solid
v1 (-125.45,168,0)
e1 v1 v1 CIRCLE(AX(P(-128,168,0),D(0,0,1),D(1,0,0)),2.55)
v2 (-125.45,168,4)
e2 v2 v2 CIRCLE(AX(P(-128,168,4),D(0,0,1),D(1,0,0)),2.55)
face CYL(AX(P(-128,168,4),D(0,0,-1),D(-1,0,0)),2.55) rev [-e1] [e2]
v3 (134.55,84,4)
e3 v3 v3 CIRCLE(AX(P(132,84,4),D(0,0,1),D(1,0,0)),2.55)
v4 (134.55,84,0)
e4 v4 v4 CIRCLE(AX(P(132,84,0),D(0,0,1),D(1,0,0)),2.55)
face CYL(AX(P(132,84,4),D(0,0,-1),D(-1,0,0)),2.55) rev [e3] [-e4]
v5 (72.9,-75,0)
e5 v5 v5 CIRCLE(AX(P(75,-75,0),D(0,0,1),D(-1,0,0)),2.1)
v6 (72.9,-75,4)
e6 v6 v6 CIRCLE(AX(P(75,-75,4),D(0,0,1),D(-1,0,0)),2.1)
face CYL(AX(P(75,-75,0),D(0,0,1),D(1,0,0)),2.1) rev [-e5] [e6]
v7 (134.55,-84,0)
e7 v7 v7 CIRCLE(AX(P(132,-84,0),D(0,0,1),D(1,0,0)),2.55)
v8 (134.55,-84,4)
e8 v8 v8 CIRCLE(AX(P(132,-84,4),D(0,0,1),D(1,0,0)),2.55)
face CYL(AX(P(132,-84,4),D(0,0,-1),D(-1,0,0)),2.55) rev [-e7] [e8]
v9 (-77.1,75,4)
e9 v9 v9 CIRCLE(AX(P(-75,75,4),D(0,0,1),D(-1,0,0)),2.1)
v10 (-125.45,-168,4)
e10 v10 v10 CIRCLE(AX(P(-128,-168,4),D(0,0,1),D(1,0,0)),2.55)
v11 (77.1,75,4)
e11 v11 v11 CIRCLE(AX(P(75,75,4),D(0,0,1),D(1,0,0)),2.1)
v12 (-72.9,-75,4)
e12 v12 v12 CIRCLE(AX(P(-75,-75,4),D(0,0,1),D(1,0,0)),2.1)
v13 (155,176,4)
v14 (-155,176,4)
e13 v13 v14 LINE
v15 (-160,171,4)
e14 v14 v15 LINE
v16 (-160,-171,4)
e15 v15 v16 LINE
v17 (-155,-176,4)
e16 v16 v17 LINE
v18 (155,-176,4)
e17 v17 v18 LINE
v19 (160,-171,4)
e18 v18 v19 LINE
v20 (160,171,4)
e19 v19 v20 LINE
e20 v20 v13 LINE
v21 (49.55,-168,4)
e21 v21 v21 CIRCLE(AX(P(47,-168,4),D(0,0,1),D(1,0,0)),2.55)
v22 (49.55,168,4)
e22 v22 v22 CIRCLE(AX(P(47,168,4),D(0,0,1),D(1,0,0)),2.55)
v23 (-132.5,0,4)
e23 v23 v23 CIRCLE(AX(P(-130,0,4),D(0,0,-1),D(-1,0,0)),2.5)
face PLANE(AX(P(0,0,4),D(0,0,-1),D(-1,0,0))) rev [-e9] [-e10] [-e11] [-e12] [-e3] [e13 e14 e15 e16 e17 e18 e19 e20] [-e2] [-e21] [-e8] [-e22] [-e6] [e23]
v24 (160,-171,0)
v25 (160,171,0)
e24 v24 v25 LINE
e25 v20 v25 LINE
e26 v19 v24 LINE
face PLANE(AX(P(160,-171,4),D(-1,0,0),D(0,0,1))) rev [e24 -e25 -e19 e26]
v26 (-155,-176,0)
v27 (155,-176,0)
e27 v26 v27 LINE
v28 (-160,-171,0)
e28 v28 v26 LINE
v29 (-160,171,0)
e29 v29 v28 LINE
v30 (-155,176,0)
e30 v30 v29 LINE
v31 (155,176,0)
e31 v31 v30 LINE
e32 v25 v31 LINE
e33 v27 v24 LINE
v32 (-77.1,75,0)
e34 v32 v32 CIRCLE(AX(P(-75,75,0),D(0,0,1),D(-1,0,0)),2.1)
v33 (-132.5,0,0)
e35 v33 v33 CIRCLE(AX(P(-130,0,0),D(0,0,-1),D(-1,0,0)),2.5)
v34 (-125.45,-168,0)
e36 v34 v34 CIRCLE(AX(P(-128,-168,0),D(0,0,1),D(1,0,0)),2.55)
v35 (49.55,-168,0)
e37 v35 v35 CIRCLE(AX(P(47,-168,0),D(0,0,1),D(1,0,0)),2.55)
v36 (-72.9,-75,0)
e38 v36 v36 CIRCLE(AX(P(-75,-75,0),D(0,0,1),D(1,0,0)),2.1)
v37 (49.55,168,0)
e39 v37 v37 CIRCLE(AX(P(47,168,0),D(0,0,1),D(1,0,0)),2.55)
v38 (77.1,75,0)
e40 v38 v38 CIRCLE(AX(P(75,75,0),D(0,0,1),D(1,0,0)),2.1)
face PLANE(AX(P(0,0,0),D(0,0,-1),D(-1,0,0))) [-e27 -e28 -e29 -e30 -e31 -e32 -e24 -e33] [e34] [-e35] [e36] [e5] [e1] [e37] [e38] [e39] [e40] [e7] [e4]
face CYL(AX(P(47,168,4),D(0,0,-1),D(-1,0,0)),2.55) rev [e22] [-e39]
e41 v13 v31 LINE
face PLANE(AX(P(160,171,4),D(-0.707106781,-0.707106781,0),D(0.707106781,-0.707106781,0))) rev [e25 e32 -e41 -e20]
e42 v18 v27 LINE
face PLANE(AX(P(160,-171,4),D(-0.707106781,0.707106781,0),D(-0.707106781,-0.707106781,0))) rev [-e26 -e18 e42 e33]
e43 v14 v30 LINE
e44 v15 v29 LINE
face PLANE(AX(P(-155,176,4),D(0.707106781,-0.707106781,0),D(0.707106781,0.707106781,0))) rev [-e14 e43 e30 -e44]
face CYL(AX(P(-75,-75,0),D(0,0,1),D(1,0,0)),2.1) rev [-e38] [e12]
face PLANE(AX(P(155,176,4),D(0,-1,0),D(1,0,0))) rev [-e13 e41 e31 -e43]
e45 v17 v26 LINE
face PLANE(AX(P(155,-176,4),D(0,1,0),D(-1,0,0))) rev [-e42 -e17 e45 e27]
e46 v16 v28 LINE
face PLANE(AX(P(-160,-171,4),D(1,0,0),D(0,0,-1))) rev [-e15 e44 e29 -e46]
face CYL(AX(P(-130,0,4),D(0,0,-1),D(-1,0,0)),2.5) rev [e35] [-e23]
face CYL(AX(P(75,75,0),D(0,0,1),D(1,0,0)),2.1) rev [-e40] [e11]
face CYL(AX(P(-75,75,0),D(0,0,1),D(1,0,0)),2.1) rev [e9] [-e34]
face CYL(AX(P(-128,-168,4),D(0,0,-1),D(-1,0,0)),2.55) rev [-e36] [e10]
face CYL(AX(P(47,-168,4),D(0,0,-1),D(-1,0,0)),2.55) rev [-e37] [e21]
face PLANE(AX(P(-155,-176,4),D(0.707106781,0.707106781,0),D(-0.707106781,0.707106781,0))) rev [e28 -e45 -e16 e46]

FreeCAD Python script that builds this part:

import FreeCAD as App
import Part
import Sketcher

V = App.Vector
Q = App.Units.Quantity

doc = App.newDocument("Part")
body = doc.addObject("PartDesign::Body", "Body")

# Sketch on XY plane
sketch1 = body.newObject("Sketcher::SketchObject", "Sketch")
sketch1.AttachmentSupport = (doc.getObject("XY_Plane"), [""])
sketch1.MapMode = "FlatFace"
sketch1.addGeometry(Part.LineSegment(V(-155, 176, 0), V(-160, 171, 0)), False)
sketch1.addGeometry(Part.LineSegment(V(-160, 171, 0), V(-160, -171, 0)), False)
sketch1.addGeometry(Part.LineSegment(V(-160, -171, 0), V(-155, -176, 0)), False)
sketch1.addGeometry(Part.LineSegment(V(-155, -176, 0), V(155, -176, 0)), False)
sketch1.addGeometry(Part.LineSegment(V(155, -176, 0), V(160, -171, 0)), False)
sketch1.addGeometry(Part.LineSegment(V(160, -171, 0), V(160, 171, 0)), False)
sketch1.addGeometry(Part.LineSegment(V(160, 171, 0), V(155, 176, 0)), False)
sketch1.addGeometry(Part.LineSegment(V(155, 176, 0), V(-155, 176, 0)), False)
sketch1.addConstraint(Sketcher.Constraint("Coincident", 0, 2, 1, 1))
sketch1.addConstraint(Sketcher.Constraint("Coincident", 1, 2, 2, 1))
sketch1.addConstraint(Sketcher.Constraint("Coincident", 2, 2, 3, 1))
sketch1.addConstraint(Sketcher.Constraint("Coincident", 3, 2, 4, 1))
sketch1.addConstraint(Sketcher.Constraint("Coincident", 4, 2, 5, 1))
sketch1.addConstraint(Sketcher.Constraint("Coincident", 5, 2, 6, 1))
sketch1.addConstraint(Sketcher.Constraint("Coincident", 6, 2, 7, 1))
sketch1.addConstraint(Sketcher.Constraint("Coincident", 7, 2, 0, 1))
sketch1.addConstraint(Sketcher.Constraint("Vertical", 1))
sketch1.addConstraint(Sketcher.Constraint("Horizontal", 3))
sketch1.addConstraint(Sketcher.Constraint("Vertical", 5))
sketch1.addConstraint(Sketcher.Constraint("Horizontal", 7))
sketch1.addConstraint(Sketcher.Constraint("Symmetric", 0, 2, 4, 2, -1, 1))
sketch1.addConstraint(Sketcher.Constraint("Symmetric", 2, 2, 6, 2, -1, 1))
sketch1.addConstraint(Sketcher.Constraint("Perpendicular", 0, 2))
sketch1.addConstraint(Sketcher.Constraint("Perpendicular", 2, 4))
sketch1.addConstraint(Sketcher.Constraint("Perpendicular", 4, 6))
sketch1.addConstraint(Sketcher.Constraint("Horizontal", 1, 2, 4, 2))
sketch1.addConstraint(Sketcher.Constraint("Vertical", 3, 2, 6, 2))
sketch1.addConstraint(Sketcher.Constraint("DistanceX", 3, 1, 3, 2, Q("310 mm")))
sketch1.addConstraint(Sketcher.Constraint("DistanceY", 1, 2, 1, 1, Q("342 mm")))
sketch1.addConstraint(Sketcher.Constraint("DistanceX", 0, 2, -1, 1, Q("160 mm")))
pad1 = body.newObject("PartDesign::Pad", "Pad")
pad1.Profile = sketch1
pad1.Length = 4

# Sketch on XY plane
sketch2 = body.newObject("Sketcher::SketchObject", "Sketch001")
sketch2.AttachmentSupport = (doc.getObject("XY_Plane"), [""])
sketch2.MapMode = "FlatFace"
sketch2.addGeometry(Part.Circle(V(-130, 0, 0), V(0, 0, 1), 2.5), False)
sketch2.addConstraint(Sketcher.Constraint("PointOnObject", 0, 3, -1))
sketch2.addConstraint(Sketcher.Constraint("Diameter", 0, Q("5 mm")))
sketch2.addConstraint(Sketcher.Constraint("DistanceX", 0, 3, -1, 1, Q("130 mm")))
pocket1 = body.newObject("PartDesign::Pocket", "Pocket")
pocket1.Profile = sketch2
pocket1.Type = "ThroughAll"
pocket1.Reversed = True

# Sketch on XY plane
sketch3 = body.newObject("Sketcher::SketchObject", "Sketch002")
sketch3.AttachmentSupport = (doc.getObject("XY_Plane"), [""])
sketch3.MapMode = "FlatFace"
sketch3.addGeometry(Part.Circle(V(-128, 168, 0), V(0, 0, 1), 2.5), False)
sketch3.addGeometry(Part.Circle(V(47, 168, 0), V(0, 0, 1), 2.5), False)
sketch3.addGeometry(Part.Circle(V(132, 84, 0), V(0, 0, 1), 2.5), False)
sketch3.addGeometry(Part.Circle(V(132, -84, 0), V(0, 0, 1), 2.5), False)
sketch3.addGeometry(Part.Circle(V(47, -168, 0), V(0, 0, 1), 2.5), False)
sketch3.addGeometry(Part.Circle(V(-128, -168, 0), V(0, 0, 1), 2.5), False)
sketch3.addConstraint(Sketcher.Constraint("Equal", 0, 1))
sketch3.addConstraint(Sketcher.Constraint("Equal", 1, 2))
sketch3.addConstraint(Sketcher.Constraint("Equal", 2, 3))
sketch3.addConstraint(Sketcher.Constraint("Equal", 3, 4))
sketch3.addConstraint(Sketcher.Constraint("Equal", 4, 5))
sketch3.addConstraint(Sketcher.Constraint("Symmetric", 2, 3, 3, 3, -1))
sketch3.addConstraint(Sketcher.Constraint("Symmetric", 1, 3, 4, 3, -1))
sketch3.addConstraint(Sketcher.Constraint("Symmetric", 0, 3, 5, 3, -1))
sketch3.addConstraint(Sketcher.Constraint("Horizontal", 0, 3, 1, 3))
sketch3.addConstraint(Sketcher.Constraint("Diameter", 0, Q("5.1 mm")))
sketch3.addConstraint(Sketcher.Constraint("DistanceX", 0, 3, -1, 1, Q("128 mm")))
sketch3.addConstraint(Sketcher.Constraint("DistanceY", -1, 1, 0, 3, Q("168 mm")))
sketch3.addConstraint(Sketcher.Constraint("DistanceX", -1, 1, 1, 3, Q("47 mm")))
sketch3.addConstraint(Sketcher.Constraint("DistanceX", -1, 1, 2, 3, Q("132 mm")))
sketch3.addConstraint(Sketcher.Constraint("DistanceY", -1, 1, 2, 3, Q("84 mm")))
pocket2 = body.newObject("PartDesign::Pocket", "Pocket001")
pocket2.Profile = sketch3
pocket2.Type = "ThroughAll"
pocket2.Reversed = True

# Sketch on XY plane
sketch4 = body.newObject("Sketcher::SketchObject", "Sketch003")
sketch4.AttachmentSupport = (doc.getObject("XY_Plane"), [""])
sketch4.MapMode = "FlatFace"
sketch4.AttachmentOffset = App.Placement(V(0, 0, 4), App.Rotation())
sketch4.addGeometry(Part.Circle(V(-75, -75, 0), V(0, 0, 1), 2.1), False)
sketch4.addGeometry(Part.Circle(V(75, -75, 0), V(0, 0, 1), 2.1), False)
sketch4.addGeometry(Part.Circle(V(75, 75, 0), V(0, 0, 1), 2.1), False)
sketch4.addGeometry(Part.Circle(V(-75, 75, 0), V(0, 0, 1), 2.1), False)
sketch4.addConstraint(Sketcher.Constraint("Equal", 0, 1))
sketch4.addConstraint(Sketcher.Constraint("Equal", 1, 2))
sketch4.addConstraint(Sketcher.Constraint("Equal", 2, 3))
sketch4.addConstraint(Sketcher.Constraint("Symmetric", 0, 3, 2, 3, -1, 1))
sketch4.addConstraint(Sketcher.Constraint("Symmetric", 1, 3, 3, 3, -1, 1))
sketch4.addConstraint(Sketcher.Constraint("Symmetric", 0, 3, 1, 3, -2))
sketch4.addConstraint(Sketcher.Constraint("Diameter", 0, Q("4.2 mm")))
sketch4.addConstraint(Sketcher.Constraint("DistanceX", 0, 3, -1, 1, Q("75 mm")))
sketch4.addConstraint(Sketcher.Constraint("DistanceY", 0, 3, -1, 1, Q("75 mm")))
pocket3 = body.newObject("PartDesign::Pocket", "Pocket002")
pocket3.Profile = sketch4
pocket3.Type = "ThroughAll"

doc.recompute()
